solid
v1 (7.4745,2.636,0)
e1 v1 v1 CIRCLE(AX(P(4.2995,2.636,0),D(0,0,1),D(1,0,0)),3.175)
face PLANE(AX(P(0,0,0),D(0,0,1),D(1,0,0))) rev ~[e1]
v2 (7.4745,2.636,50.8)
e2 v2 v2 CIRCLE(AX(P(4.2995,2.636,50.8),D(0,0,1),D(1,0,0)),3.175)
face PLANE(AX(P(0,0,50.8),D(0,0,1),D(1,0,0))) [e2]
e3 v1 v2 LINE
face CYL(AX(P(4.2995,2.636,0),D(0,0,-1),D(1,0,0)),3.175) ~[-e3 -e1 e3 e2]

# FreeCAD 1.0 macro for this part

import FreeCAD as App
import Part
import Sketcher
from FreeCAD import Vector
Q = App.Units.Quantity

doc = App.newDocument("Part")
body = doc.addObject("PartDesign::Body", "Body")

# Sketch on XY plane
sketch1 = doc.addObject("Sketcher::SketchObject", "Sketch")
body.addObject(sketch1)
sketch1.AttachmentSupport = (doc.XY_Plane, [""])
sketch1.MapMode = "FlatFace"
sketch1.addGeometry(Part.Circle(Vector(4.2995, 2.636, 0), Vector(0, 0, 1), 3.175), False)
sketch1.addConstraint([
    Sketcher.Constraint("Diameter", 0, Q("0.25 in")),
    Sketcher.Constraint("DistanceX", -1, 1, 0, 3, Q("4.2995 mm")),
    Sketcher.Constraint("DistanceY", -1, 1, 0, 3, Q("2.636 mm")),
])
pad1 = doc.addObject("PartDesign::Pad", "Pad")
body.addObject(pad1)
pad1.Profile = sketch1
pad1.Length = Q("2 in")

doc.recompute()
